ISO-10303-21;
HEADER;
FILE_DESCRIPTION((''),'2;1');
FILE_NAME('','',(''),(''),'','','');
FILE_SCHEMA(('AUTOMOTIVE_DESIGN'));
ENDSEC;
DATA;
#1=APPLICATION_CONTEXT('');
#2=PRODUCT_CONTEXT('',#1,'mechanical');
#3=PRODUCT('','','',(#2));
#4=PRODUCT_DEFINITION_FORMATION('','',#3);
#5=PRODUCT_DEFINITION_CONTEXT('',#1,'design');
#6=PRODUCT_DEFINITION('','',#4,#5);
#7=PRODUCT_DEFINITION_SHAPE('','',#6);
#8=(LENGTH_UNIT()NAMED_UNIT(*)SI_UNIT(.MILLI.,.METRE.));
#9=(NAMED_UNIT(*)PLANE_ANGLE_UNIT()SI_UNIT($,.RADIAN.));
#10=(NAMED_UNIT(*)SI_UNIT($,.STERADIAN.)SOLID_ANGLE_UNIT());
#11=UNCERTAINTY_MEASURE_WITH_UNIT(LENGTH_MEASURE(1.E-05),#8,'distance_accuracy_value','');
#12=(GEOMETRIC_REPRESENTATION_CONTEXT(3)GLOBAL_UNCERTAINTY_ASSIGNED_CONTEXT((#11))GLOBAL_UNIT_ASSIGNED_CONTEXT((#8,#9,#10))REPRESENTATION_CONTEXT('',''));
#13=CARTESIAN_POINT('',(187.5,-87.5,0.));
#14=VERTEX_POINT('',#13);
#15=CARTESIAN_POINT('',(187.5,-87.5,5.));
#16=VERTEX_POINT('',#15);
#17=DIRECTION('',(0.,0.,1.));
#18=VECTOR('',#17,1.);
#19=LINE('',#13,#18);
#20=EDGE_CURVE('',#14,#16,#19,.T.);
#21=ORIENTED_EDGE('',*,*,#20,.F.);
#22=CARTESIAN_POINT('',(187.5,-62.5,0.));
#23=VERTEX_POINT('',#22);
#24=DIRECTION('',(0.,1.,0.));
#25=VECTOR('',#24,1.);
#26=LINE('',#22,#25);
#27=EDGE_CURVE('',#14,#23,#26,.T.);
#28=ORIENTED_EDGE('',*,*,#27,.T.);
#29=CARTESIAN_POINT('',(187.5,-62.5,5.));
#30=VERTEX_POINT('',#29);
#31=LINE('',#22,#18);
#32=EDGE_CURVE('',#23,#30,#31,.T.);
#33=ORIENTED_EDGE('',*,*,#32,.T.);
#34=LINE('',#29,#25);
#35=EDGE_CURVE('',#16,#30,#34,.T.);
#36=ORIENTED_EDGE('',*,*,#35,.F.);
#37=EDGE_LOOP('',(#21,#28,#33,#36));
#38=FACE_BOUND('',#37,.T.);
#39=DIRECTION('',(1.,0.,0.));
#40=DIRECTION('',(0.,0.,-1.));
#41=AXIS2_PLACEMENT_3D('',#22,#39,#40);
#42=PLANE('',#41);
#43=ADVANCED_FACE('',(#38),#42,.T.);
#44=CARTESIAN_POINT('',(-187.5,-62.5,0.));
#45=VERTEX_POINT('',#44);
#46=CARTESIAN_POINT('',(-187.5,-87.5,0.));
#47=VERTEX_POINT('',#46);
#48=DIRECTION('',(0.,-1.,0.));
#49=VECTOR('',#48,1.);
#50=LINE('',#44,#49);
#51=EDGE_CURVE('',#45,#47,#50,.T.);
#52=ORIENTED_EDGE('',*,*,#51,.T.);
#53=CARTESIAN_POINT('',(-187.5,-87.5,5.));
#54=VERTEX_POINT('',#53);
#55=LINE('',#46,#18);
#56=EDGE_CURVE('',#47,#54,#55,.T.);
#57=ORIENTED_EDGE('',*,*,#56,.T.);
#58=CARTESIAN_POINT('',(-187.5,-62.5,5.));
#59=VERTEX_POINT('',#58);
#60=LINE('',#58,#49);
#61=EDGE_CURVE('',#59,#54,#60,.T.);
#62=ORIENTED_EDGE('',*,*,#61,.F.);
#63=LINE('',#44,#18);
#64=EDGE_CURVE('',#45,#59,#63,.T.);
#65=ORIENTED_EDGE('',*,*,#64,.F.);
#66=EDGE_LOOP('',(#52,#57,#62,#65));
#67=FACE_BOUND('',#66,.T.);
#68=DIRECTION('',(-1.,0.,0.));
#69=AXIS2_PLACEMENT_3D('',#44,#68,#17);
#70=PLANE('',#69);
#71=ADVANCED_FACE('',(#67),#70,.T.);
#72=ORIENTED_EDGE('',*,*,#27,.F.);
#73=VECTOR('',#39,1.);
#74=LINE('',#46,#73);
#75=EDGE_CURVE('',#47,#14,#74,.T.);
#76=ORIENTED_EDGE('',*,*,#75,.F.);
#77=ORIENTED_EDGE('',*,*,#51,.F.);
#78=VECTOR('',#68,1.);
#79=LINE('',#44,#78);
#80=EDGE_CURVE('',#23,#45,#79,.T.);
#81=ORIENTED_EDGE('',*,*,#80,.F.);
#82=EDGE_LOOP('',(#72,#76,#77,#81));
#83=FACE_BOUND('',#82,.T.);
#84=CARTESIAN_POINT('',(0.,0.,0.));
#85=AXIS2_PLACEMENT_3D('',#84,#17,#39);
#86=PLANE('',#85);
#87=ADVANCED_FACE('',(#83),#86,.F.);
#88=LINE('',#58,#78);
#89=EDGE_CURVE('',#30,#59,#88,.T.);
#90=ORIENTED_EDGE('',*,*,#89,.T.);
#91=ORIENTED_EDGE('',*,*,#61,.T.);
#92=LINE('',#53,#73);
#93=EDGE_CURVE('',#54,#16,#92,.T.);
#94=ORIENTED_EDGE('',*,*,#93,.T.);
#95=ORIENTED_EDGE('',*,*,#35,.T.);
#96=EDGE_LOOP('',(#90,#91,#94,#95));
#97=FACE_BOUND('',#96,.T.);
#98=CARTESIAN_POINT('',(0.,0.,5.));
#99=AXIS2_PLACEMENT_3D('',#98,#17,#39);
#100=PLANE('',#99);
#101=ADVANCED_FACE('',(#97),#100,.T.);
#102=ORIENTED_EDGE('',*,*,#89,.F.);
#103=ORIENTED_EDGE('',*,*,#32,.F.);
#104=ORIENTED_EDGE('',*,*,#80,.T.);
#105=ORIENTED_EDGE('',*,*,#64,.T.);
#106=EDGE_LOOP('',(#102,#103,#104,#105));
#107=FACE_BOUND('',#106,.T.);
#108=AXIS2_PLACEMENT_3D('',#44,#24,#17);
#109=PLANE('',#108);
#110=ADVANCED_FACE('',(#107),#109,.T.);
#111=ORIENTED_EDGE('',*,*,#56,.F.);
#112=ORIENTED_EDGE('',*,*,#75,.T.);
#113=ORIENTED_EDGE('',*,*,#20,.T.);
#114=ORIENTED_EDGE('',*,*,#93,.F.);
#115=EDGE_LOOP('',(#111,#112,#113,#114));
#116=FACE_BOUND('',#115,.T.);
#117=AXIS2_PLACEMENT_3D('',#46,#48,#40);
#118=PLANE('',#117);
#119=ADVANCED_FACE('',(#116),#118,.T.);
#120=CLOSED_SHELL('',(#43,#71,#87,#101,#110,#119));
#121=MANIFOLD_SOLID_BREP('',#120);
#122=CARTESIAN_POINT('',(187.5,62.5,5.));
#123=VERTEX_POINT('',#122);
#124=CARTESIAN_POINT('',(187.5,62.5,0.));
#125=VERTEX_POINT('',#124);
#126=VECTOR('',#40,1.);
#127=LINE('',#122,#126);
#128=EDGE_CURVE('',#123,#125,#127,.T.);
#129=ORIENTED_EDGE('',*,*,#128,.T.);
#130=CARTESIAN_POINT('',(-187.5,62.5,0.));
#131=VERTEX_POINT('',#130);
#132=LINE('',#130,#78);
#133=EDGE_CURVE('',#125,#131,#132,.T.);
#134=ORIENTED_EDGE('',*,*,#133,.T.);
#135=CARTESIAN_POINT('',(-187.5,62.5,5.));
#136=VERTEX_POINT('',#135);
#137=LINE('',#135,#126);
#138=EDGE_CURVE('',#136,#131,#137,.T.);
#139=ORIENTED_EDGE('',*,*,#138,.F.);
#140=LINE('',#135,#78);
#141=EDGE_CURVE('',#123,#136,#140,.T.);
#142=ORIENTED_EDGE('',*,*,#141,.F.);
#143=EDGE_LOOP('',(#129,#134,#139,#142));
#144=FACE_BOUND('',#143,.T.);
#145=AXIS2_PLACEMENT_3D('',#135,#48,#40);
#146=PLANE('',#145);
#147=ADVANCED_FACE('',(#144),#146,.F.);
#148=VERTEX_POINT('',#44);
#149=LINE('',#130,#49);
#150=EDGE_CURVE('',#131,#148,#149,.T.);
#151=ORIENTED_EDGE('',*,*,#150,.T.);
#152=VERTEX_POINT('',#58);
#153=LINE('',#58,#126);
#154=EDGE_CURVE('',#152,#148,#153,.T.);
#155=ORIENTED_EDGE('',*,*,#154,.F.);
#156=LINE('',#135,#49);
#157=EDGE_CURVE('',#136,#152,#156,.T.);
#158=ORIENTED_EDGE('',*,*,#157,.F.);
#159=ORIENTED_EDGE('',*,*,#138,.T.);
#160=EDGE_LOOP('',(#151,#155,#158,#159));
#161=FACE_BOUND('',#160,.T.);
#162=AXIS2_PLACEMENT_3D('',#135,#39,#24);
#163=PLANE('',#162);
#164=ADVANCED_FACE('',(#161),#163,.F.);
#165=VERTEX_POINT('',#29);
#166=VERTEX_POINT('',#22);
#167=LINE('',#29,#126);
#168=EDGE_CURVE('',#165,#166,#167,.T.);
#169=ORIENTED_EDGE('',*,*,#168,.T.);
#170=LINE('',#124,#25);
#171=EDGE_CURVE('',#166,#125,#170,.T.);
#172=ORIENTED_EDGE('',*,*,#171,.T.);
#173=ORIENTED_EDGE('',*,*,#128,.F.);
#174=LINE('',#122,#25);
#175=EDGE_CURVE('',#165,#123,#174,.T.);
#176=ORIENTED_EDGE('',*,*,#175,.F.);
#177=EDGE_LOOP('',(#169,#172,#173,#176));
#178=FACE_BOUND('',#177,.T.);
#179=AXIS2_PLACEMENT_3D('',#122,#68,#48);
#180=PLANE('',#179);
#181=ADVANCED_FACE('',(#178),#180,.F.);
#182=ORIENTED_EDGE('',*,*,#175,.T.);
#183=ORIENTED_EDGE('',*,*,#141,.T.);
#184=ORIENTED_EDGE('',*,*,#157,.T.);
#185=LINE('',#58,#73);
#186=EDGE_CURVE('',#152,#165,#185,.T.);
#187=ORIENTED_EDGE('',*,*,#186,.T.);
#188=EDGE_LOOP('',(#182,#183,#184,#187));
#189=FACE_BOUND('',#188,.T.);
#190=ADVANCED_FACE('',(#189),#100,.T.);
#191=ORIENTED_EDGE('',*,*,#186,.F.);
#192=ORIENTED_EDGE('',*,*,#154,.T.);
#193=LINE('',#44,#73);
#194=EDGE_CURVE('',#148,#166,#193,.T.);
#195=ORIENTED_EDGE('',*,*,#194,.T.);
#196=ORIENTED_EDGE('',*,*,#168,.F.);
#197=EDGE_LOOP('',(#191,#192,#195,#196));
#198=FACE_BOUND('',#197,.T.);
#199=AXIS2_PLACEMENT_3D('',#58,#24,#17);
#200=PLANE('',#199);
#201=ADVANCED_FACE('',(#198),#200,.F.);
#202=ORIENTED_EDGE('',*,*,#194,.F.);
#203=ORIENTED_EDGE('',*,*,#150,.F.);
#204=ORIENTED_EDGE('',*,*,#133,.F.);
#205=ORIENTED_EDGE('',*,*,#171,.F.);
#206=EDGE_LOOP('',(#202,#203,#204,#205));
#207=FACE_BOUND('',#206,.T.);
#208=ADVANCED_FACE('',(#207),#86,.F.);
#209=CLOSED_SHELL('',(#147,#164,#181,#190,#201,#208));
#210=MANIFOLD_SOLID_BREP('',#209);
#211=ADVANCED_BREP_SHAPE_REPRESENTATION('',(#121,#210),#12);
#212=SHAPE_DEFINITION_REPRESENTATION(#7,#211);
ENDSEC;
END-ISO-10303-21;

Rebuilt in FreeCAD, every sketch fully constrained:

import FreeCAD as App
import Part
import Sketcher
from FreeCAD import Vector


def add_polygon(sketch, points):
    """Adds a closed chain of lines whose ends are joined by coincident constraints."""
    first, n = sketch.GeometryCount, len(points)
    for a, b in zip(points, points[1:] + points[:1]):
        sketch.addGeometry(Part.LineSegment(App.Vector(*a, 0), App.Vector(*b, 0)), False)
    for i in range(n):
        sketch.addConstraint(Sketcher.Constraint("Coincident", first + i, 2, first + (i + 1) % n, 1))

doc = App.newDocument("Part")
body = doc.addObject("PartDesign::Body", "Body")

# Sketch on XY plane
sketch1 = body.newObject("Sketcher::SketchObject", "Sketch")
sketch1.AttachmentSupport = (doc.getObject("XY_Plane"), [""])
sketch1.MapMode = "FlatFace"
add_polygon(sketch1, [(-187.5, 62.5), (-187.5, -62.5), (187.5, -62.5), (187.5, 62.5)])  # lines 0-3
sketch1.addConstraint([
    Sketcher.Constraint("Vertical", 0),
    Sketcher.Constraint("Horizontal", 1),
    Sketcher.Constraint("Vertical", 2),
    Sketcher.Constraint("Horizontal", 3),
    Sketcher.Constraint("Symmetric", 0, 2, 2, 2, -1, 1),
    Sketcher.Constraint("DistanceX", 1, 1, 1, 2, 375.0),
    Sketcher.Constraint("DistanceY", 0, 2, 0, 1, 125.0),
])
pad1 = body.newObject("PartDesign::Pad", "Pad")
pad1.Profile = sketch1
pad1.Length = 5
body2 = doc.addObject("PartDesign::Body", "Body001")

# Sketch on XY plane
sketch2 = body2.newObject("Sketcher::SketchObject", "Sketch001")
sketch2.AttachmentSupport = (doc.getObject("XY_Plane001"), [""])
sketch2.MapMode = "FlatFace"
sketch2.AttachmentOffset = App.Placement(Vector(0, 0, 5), App.Rotation())
add_polygon(sketch2, [(-187.5, -62.5), (-187.5, -87.5), (187.5, -87.5), (187.5, -62.5)])  # lines 0-3
sketch2.addConstraint([
    Sketcher.Constraint("Vertical", 0),
    Sketcher.Constraint("Horizontal", 1),
    Sketcher.Constraint("Vertical", 2),
    Sketcher.Constraint("Horizontal", 3),
    Sketcher.Constraint("DistanceX", 1, 1, 1, 2, 375.0),
    Sketcher.Constraint("DistanceY", 0, 2, 0, 1, 25.0),
    Sketcher.Constraint("DistanceX", 0, 2, -1, 1, 187.5),
    Sketcher.Constraint("DistanceY", 0, 2, -1, 1, 87.5),
])
pad2 = body2.newObject("PartDesign::Pad", "Pad001")
pad2.Profile = sketch2
pad2.Length = 5
pad2.Reversed = True

doc.recompute()
